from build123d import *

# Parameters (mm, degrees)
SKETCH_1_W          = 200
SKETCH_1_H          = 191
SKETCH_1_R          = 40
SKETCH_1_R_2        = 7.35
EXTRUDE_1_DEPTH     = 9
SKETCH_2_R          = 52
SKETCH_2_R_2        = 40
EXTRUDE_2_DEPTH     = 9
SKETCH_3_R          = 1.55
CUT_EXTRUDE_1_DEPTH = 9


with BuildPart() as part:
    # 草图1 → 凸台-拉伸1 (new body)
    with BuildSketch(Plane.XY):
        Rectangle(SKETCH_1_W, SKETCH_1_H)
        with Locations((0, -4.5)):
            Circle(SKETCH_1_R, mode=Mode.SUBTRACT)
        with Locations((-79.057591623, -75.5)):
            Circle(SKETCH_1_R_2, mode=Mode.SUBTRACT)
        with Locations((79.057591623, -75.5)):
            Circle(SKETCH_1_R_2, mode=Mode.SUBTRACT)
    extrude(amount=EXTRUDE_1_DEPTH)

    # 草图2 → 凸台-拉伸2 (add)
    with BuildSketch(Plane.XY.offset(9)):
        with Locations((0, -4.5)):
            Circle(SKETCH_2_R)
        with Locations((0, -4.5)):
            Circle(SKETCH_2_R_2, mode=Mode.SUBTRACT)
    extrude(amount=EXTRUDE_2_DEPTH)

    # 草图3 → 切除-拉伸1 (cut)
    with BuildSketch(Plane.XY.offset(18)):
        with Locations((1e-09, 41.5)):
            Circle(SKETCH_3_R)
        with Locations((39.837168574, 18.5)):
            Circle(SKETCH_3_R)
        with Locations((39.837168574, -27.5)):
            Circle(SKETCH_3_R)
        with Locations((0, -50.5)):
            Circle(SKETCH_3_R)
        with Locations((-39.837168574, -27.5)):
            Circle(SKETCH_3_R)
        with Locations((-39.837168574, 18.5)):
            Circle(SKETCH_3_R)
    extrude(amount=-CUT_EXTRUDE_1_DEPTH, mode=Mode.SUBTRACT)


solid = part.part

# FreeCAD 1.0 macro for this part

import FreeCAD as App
import Part
import Sketcher
from FreeCAD import Vector


def add_polygon(sketch, points):
    """Adds a closed chain of lines whose ends are joined by coincident constraints."""
    first, n = sketch.GeometryCount, len(points)
    for a, b in zip(points, points[1:] + points[:1]):
        sketch.addGeometry(Part.LineSegment(App.Vector(*a, 0), App.Vector(*b, 0)), False)
    for i in range(n):
        sketch.addConstraint(Sketcher.Constraint("Coincident", first + i, 2, first + (i + 1) % n, 1))

doc = App.newDocument("Part")
params = doc.addObject("Spreadsheet::Sheet", "Params")
for row, (alias, value) in enumerate([
    ("sketch1_diameter", "80 mm"),
    ("sketch1_diameter2", "14.7 mm"),
    ("sketch1_width", "200 mm"),
    ("sketch1_height", "191 mm"),
    ("pad1_length", "9 mm"),
    ("sketch2_diameter", "104 mm"),
    ("sketch2_diameter2", "80 mm"),
    ("pad2_length", "9 mm"),
    ("sketch3_diameter", "3.1 mm"),
    ("pocket1_length", "9 mm"),
], start=1):
    params.set(f"A{row}", alias)
    params.set(f"B{row}", "=" + value)
    params.setAlias(f"B{row}", alias)

body = doc.addObject("PartDesign::Body", "Body")

# Sketch on XY plane
sketch1 = body.newObject("Sketcher::SketchObject", "Sketch")
sketch1.AttachmentSupport = (doc.getObject("XY_Plane"), [""])
sketch1.MapMode = "FlatFace"
add_polygon(sketch1, [(-100, 96), (-100, -96), (100, -96), (100, 96)])  # lines 0-3
sketch1.addGeometry(Part.Circle(Vector(-79, -76, 0), Vector(0, 0, 1), 7), False)  # 4
sketch1.addGeometry(Part.Circle(Vector(79, -76, 0), Vector(0, 0, 1), 7), False)  # 5
sketch1.addGeometry(Part.Circle(Vector(0, -4, 0), Vector(0, 0, 1), 40), False)  # 6
sketch1.addConstraint([
    Sketcher.Constraint("Vertical", 0),
    Sketcher.Constraint("Horizontal", 1),
    Sketcher.Constraint("Vertical", 2),
    Sketcher.Constraint("Horizontal", 3),
    Sketcher.Constraint("Equal", 4, 5),
    Sketcher.Constraint("Symmetric", 0, 2, 2, 2, -1, 1),
    Sketcher.Constraint("Symmetric", 4, 3, 5, 3, -2),
    Sketcher.Constraint("PointOnObject", 6, 3, -2),
    Sketcher.Constraint("Diameter", 6, 80.0),
    Sketcher.Constraint("Diameter", 4, 14.7),
    Sketcher.Constraint("DistanceX", 1, 1, 1, 2, 200.0),
    Sketcher.Constraint("DistanceY", 0, 2, 0, 1, 191.0),
    Sketcher.Constraint("DistanceY", 4, 3, 6, 3, 71.0),
    Sketcher.Constraint("DistanceY", 0, 2, 4, 3, 20.0),
    Sketcher.Constraint("DistanceX", 4, 3, -1, 1, 79.057592),
])
sketch1.setExpression("Constraints[12]", "Params.sketch1_diameter")
sketch1.setExpression("Constraints[13]", "Params.sketch1_diameter2")
sketch1.setExpression("Constraints[14]", "Params.sketch1_width")
sketch1.setExpression("Constraints[15]", "Params.sketch1_height")
pad1 = body.newObject("PartDesign::Pad", "Pad")
pad1.Profile = sketch1
pad1.setExpression("Length", "Params.pad1_length")

# Sketch on XY plane
sketch2 = body.newObject("Sketcher::SketchObject", "Sketch001")
sketch2.AttachmentSupport = (doc.getObject("XY_Plane"), [""])
sketch2.MapMode = "FlatFace"
sketch2.AttachmentOffset = App.Placement(Vector(0, 0, 9), App.Rotation())
sketch2.addGeometry([
    Part.Circle(Vector(0, -4, 0), Vector(0, 0, 1), 52),
    Part.Circle(Vector(0, -4, 0), Vector(0, 0, 1), 40),
], False)
sketch2.addConstraint([
    Sketcher.Constraint("Coincident", 1, 3, 0, 3),
    Sketcher.Constraint("PointOnObject", 0, 3, -2),
    Sketcher.Constraint("Diameter", 0, 104.0),
    Sketcher.Constraint("Diameter", 1, 80.0),
    Sketcher.Constraint("DistanceY", 0, 3, -1, 1, 4.5),
])
sketch2.setExpression("Constraints[2]", "Params.sketch2_diameter")
sketch2.setExpression("Constraints[3]", "Params.sketch2_diameter2")
pad2 = body.newObject("PartDesign::Pad", "Pad001")
pad2.Profile = sketch2
pad2.setExpression("Length", "Params.pad2_length")

# Sketch on XY plane
sketch3 = body.newObject("Sketcher::SketchObject", "Sketch002")
sketch3.AttachmentSupport = (doc.getObject("XY_Plane"), [""])
sketch3.MapMode = "FlatFace"
sketch3.AttachmentOffset = App.Placement(Vector(0, 0, 18), App.Rotation())
sketch3.addGeometry([
    Part.Circle(Vector(0, 41.5, 0), Vector(0, 0, 1), 1.6),  # 0
    Part.Circle(Vector(39.8, 18.5, 0), Vector(0, 0, 1), 1.6),  # 1
    Part.Circle(Vector(39.8, -27.5, 0), Vector(0, 0, 1), 1.6),  # 2
    Part.Circle(Vector(0, -50.5, 0), Vector(0, 0, 1), 1.6),  # 3
    Part.Circle(Vector(-39.8, -27.5, 0), Vector(0, 0, 1), 1.6),  # 4
    Part.Circle(Vector(-39.8, 18.5, 0), Vector(0, 0, 1), 1.6),  # 5
], False)
sketch3.addConstraint([
    Sketcher.Constraint("Equal", 0, 1),
    Sketcher.Constraint("Equal", 1, 2),
    Sketcher.Constraint("Equal", 2, 3),
    Sketcher.Constraint("Equal", 3, 4),
    Sketcher.Constraint("Equal", 4, 5),
    Sketcher.Constraint("Symmetric", 2, 3, 4, 3, -2),
    Sketcher.Constraint("Symmetric", 1, 3, 5, 3, -2),
    Sketcher.Constraint("PointOnObject", 0, 3, -2),
    Sketcher.Constraint("PointOnObject", 3, 3, -2),
    Sketcher.Constraint("Vertical", 1, 3, 2, 3),
    Sketcher.Constraint("Diameter", 0, 3.1),
    Sketcher.Constraint("DistanceY", 1, 3, 0, 3, 23.0),
    Sketcher.Constraint("DistanceY", 2, 3, 1, 3, 46.0),
    Sketcher.Constraint("DistanceY", 3, 3, 2, 3, 23.0),
    Sketcher.Constraint("DistanceY", -1, 1, 0, 3, 41.5),
    Sketcher.Constraint("DistanceX", -1, 1, 1, 3, 39.837169),
])
sketch3.setExpression("Constraints[10]", "Params.sketch3_diameter")
pocket1 = body.newObject("PartDesign::Pocket", "Pocket")
pocket1.Profile = sketch3
pocket1.setExpression("Length", "Params.pocket1_length")

doc.recompute()
